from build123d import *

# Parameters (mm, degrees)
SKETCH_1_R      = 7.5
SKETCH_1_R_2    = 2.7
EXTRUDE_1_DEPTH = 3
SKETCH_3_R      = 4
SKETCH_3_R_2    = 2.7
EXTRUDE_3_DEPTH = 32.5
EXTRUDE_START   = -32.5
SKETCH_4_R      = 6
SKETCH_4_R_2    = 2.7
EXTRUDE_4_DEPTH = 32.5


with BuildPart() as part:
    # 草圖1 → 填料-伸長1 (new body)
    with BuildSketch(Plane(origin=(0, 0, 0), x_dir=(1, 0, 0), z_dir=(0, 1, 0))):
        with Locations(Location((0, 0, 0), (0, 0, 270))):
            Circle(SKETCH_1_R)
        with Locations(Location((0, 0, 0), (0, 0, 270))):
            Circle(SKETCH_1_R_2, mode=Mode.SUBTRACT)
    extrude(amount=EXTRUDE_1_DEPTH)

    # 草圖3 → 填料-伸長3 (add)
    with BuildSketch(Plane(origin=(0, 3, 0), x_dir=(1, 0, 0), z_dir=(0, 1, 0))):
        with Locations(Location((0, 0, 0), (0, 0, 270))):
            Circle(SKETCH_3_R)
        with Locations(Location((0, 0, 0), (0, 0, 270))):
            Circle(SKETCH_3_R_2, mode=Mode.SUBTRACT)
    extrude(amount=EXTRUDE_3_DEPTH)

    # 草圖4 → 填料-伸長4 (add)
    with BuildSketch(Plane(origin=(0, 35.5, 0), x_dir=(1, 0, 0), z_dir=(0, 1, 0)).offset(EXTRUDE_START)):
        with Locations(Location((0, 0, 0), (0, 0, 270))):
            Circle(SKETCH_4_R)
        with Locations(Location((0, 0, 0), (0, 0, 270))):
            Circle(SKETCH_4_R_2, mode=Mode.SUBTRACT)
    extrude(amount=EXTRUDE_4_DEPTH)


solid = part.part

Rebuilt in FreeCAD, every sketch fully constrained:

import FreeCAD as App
import Part
import Sketcher

doc = App.newDocument("Part")
body = doc.addObject("PartDesign::Body", "Body")

# Sketch on XZ plane
sketch1 = body.newObject("Sketcher::SketchObject", "Sketch")
sketch1.AttachmentSupport = (doc.getObject("XZ_Plane"), [""])
sketch1.MapMode = "FlatFace"
sketch1.addGeometry(Part.Circle(App.Vector(0, 0, 0), App.Vector(0, 0, 1), 7.5), False)
sketch1.addGeometry(Part.Circle(App.Vector(0, 0, 0), App.Vector(0, 0, 1), 2.7), False)
sketch1.addConstraint(Sketcher.Constraint("Coincident", 0, 3, -1, 1))
sketch1.addConstraint(Sketcher.Constraint("Coincident", 1, 3, -1, 1))
sketch1.addConstraint(Sketcher.Constraint("Diameter", 0, 15.0))
sketch1.addConstraint(Sketcher.Constraint("Diameter", 1, 5.4))
pad1 = body.newObject("PartDesign::Pad", "Pad")
pad1.Profile = sketch1
pad1.Length = 3
pad1.Reversed = True

# Sketch on XZ plane
sketch2 = body.newObject("Sketcher::SketchObject", "Sketch001")
sketch2.AttachmentSupport = (doc.getObject("XZ_Plane"), [""])
sketch2.MapMode = "FlatFace"
sketch2.AttachmentOffset = App.Placement(App.Vector(0, 0, -3), App.Rotation())
sketch2.addGeometry(Part.Circle(App.Vector(0, 0, 0), App.Vector(0, 0, 1), 4), False)
sketch2.addGeometry(Part.Circle(App.Vector(0, 0, 0), App.Vector(0, 0, 1), 2.7), False)
sketch2.addConstraint(Sketcher.Constraint("Coincident", 0, 3, -1, 1))
sketch2.addConstraint(Sketcher.Constraint("Coincident", 1, 3, -1, 1))
sketch2.addConstraint(Sketcher.Constraint("Diameter", 0, 8.0))
sketch2.addConstraint(Sketcher.Constraint("Diameter", 1, 5.4))
pad2 = body.newObject("PartDesign::Pad", "Pad001")
pad2.Profile = sketch2
pad2.Length = 32.5
pad2.Reversed = True

# Sketch on XZ plane
sketch3 = body.newObject("Sketcher::SketchObject", "Sketch002")
sketch3.AttachmentSupport = (doc.getObject("XZ_Plane"), [""])
sketch3.MapMode = "FlatFace"
sketch3.AttachmentOffset = App.Placement(App.Vector(0, 0, -3), App.Rotation())
sketch3.addGeometry(Part.Circle(App.Vector(0, 0, 0), App.Vector(0, 0, 1), 6), False)
sketch3.addGeometry(Part.Circle(App.Vector(0, 0, 0), App.Vector(0, 0, 1), 2.7), False)
sketch3.addConstraint(Sketcher.Constraint("Coincident", 0, 3, -1, 1))
sketch3.addConstraint(Sketcher.Constraint("Coincident", 1, 3, -1, 1))
sketch3.addConstraint(Sketcher.Constraint("Diameter", 0, 12.0))
sketch3.addConstraint(Sketcher.Constraint("Diameter", 1, 5.4))
pad3 = body.newObject("PartDesign::Pad", "Pad002")
pad3.Profile = sketch3
pad3.Length = 32.5
pad3.Reversed = True

doc.recompute()
